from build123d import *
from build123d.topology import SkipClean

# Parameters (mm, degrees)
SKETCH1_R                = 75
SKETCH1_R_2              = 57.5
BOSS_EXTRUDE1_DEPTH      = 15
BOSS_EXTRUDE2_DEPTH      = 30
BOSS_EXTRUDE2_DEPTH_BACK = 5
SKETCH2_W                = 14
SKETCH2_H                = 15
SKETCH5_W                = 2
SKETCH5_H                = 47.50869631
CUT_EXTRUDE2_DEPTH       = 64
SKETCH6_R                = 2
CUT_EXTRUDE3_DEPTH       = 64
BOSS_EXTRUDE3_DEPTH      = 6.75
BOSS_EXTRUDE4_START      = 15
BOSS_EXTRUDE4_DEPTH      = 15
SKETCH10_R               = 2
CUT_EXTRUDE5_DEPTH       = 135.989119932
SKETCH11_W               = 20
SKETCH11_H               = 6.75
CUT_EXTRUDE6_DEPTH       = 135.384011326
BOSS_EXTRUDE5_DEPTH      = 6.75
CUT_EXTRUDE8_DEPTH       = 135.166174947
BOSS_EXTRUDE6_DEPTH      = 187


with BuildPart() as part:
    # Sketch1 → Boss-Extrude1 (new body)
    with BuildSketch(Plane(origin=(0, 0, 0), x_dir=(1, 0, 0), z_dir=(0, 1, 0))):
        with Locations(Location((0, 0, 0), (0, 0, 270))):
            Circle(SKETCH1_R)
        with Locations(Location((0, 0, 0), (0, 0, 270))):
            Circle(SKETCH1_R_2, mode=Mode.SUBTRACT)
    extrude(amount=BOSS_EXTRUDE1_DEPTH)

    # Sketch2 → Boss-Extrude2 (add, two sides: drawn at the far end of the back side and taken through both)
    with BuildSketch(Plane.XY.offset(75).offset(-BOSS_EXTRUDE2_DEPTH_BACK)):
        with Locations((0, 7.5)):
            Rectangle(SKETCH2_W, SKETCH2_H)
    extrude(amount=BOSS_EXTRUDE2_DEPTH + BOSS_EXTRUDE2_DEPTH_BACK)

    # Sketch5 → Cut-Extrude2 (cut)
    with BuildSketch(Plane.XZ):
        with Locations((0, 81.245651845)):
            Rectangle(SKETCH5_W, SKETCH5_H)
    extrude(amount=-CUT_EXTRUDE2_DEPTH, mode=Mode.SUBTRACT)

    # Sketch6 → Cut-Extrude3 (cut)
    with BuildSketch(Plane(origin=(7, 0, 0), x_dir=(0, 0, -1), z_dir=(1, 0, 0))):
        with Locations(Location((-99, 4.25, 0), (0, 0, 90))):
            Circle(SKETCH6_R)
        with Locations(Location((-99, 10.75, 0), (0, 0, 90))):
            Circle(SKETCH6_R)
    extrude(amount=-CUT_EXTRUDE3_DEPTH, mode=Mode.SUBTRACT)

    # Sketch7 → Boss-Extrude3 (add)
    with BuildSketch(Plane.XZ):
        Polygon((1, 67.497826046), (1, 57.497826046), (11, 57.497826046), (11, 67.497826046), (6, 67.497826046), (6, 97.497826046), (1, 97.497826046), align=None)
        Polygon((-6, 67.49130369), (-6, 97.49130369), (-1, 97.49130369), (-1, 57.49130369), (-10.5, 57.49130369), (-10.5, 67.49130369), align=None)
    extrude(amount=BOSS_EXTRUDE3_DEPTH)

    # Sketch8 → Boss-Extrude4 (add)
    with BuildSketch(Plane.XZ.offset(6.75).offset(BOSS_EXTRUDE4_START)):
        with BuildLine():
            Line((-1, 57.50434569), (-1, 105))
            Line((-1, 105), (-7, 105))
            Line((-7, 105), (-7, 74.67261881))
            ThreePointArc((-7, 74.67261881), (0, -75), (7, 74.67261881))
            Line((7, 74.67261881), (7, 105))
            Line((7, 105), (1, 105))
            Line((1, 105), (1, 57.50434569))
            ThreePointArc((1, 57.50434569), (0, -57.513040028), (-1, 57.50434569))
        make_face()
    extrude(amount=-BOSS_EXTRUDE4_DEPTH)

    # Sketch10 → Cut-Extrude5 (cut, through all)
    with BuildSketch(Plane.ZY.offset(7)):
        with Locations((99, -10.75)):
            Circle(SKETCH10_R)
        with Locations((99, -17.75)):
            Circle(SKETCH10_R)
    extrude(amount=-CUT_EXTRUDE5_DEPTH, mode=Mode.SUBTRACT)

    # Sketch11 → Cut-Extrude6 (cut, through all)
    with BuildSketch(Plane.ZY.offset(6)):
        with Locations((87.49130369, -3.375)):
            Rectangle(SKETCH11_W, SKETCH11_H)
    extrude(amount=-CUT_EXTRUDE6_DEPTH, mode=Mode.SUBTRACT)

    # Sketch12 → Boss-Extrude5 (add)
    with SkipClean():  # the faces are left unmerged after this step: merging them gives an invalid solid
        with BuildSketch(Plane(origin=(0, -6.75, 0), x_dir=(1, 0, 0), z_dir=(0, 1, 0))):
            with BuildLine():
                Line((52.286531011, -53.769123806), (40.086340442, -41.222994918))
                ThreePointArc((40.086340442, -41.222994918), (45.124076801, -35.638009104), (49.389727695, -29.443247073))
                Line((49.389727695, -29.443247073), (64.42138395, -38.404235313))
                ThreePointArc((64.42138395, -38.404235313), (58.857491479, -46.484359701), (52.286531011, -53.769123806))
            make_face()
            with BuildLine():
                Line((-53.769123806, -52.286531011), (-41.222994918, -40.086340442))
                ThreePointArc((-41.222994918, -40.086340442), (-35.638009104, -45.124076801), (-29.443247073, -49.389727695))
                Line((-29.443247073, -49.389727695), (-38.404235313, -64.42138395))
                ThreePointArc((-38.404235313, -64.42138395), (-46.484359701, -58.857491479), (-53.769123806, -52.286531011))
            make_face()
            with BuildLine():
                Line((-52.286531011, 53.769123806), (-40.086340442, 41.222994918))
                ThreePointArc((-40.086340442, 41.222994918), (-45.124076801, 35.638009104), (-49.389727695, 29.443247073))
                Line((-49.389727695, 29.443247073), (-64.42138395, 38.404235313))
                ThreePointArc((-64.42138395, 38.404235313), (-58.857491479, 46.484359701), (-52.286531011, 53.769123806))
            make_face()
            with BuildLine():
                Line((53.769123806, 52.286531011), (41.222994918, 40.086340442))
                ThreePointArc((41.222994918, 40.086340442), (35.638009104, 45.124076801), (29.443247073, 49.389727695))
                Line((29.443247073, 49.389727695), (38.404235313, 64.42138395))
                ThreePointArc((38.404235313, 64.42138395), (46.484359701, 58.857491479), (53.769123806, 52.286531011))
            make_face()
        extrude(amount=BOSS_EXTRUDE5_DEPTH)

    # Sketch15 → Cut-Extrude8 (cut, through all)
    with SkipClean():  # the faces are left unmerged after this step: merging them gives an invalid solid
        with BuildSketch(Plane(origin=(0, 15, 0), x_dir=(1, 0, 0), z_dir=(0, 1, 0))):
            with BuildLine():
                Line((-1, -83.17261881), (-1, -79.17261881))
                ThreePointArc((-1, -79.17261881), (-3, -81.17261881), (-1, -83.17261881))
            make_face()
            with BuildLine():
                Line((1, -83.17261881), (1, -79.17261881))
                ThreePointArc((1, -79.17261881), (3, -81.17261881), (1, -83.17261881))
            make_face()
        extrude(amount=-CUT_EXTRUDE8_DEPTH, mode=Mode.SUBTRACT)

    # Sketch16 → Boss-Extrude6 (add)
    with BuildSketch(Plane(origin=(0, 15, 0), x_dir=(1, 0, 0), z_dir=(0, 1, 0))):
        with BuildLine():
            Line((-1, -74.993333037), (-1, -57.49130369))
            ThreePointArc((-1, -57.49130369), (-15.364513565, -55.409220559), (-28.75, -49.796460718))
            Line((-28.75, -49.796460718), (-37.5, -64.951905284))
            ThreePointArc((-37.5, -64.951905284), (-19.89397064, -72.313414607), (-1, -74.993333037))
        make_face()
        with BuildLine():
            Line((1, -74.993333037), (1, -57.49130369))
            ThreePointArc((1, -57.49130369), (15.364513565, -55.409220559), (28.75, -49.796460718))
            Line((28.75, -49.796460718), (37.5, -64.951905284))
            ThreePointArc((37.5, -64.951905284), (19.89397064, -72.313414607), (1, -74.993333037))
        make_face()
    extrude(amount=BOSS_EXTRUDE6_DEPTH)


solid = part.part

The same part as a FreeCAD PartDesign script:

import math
import FreeCAD as App
import Part
import Sketcher
from FreeCAD import Vector
Q = App.Units.Quantity


def add_polygon(sketch, points):
    """Adds a closed chain of lines whose ends are joined by coincident constraints."""
    first, n = sketch.GeometryCount, len(points)
    for a, b in zip(points, points[1:] + points[:1]):
        sketch.addGeometry(Part.LineSegment(App.Vector(*a, 0), App.Vector(*b, 0)), False)
    for i in range(n):
        sketch.addConstraint(Sketcher.Constraint("Coincident", first + i, 2, first + (i + 1) % n, 1))

doc = App.newDocument("Part")
body = doc.addObject("PartDesign::Body", "Body")

# Sketch on XZ plane
sketch1 = body.newObject("Sketcher::SketchObject", "Sketch")
sketch1.AttachmentSupport = (doc.getObject("XZ_Plane"), [""])
sketch1.MapMode = "FlatFace"
sketch1.addGeometry([
    Part.Circle(Vector(0, 0, 0), Vector(0, 0, 1), 75),
    Part.Circle(Vector(0, 0, 0), Vector(0, 0, 1), 58),
], False)
sketch1.addConstraint([
    Sketcher.Constraint("Coincident", 0, 3, -1, 1),
    Sketcher.Constraint("Coincident", 1, 3, -1, 1),
    Sketcher.Constraint("Diameter", 0, 150.0),
    Sketcher.Constraint("Diameter", 1, 115.0),
])
pad1 = body.newObject("PartDesign::Pad", "Pad")
pad1.Profile = sketch1
pad1.Length = 15
pad1.Reversed = True

# Sketch on XY plane
sketch2 = body.newObject("Sketcher::SketchObject", "Sketch001")
sketch2.AttachmentSupport = (doc.getObject("XY_Plane"), [""])
sketch2.MapMode = "FlatFace"
sketch2.AttachmentOffset = App.Placement(Vector(0, 0, 75), App.Rotation())
add_polygon(sketch2, [(-7, 15), (-7, 0), (7, 0), (7, 15)])  # lines 0-3
sketch2.addConstraint([
    Sketcher.Constraint("Vertical", 0),
    Sketcher.Constraint("Horizontal", 1),
    Sketcher.Constraint("Vertical", 2),
    Sketcher.Constraint("Horizontal", 3),
    Sketcher.Constraint("Symmetric", 0, 2, 1, 2, -1, 1),
    Sketcher.Constraint("DistanceX", 1, 1, 1, 2, 14.0),
    Sketcher.Constraint("DistanceY", 0, 2, 0, 1, 15.0),
])
pad2 = body.newObject("PartDesign::Pad", "Pad001")
pad2.Profile = sketch2
pad2.Type = "TwoLengths"
pad2.Length = 30
pad2.Length2 = 5

# Sketch on XZ plane
sketch3 = body.newObject("Sketcher::SketchObject", "Sketch002")
sketch3.AttachmentSupport = (doc.getObject("XZ_Plane"), [""])
sketch3.MapMode = "FlatFace"
add_polygon(sketch3, [(-1, 105), (-1, 57.5), (1, 57.5), (1, 105)])  # lines 0-3
sketch3.addConstraint([
    Sketcher.Constraint("Vertical", 0),
    Sketcher.Constraint("Horizontal", 1),
    Sketcher.Constraint("Vertical", 2),
    Sketcher.Constraint("Horizontal", 3),
    Sketcher.Constraint("DistanceX", 1, 1, 1, 2, 2.0),
    Sketcher.Constraint("DistanceX", 0, 2, -1, 1, 1.0),
    Sketcher.Constraint("DistanceY", -1, 1, 2, 2, 105.0),
    Sketcher.Constraint("DistanceY", 0, 2, 0, 1, 47.508696),
])
pocket1 = body.newObject("PartDesign::Pocket", "Pocket")
pocket1.Profile = sketch3
pocket1.Length = 64

# Sketch on YZ plane
sketch4 = body.newObject("Sketcher::SketchObject", "Sketch003")
sketch4.AttachmentSupport = (doc.getObject("YZ_Plane"), [""])
sketch4.MapMode = "FlatFace"
sketch4.AttachmentOffset = App.Placement(Vector(0, 0, 7), App.Rotation())
sketch4.addGeometry([
    Part.Circle(Vector(4.2, 99, 0), Vector(0, 0, 1), 2),
    Part.Circle(Vector(10.8, 99, 0), Vector(0, 0, 1), 2),
], False)
sketch4.addConstraint([
    Sketcher.Constraint("Equal", 0, 1),
    Sketcher.Constraint("Horizontal", 0, 3, 1, 3),
    Sketcher.Constraint("Diameter", 0, 4.0),
    Sketcher.Constraint("DistanceY", -1, 1, 0, 3, 99.0),
    Sketcher.Constraint("DistanceX", 0, 3, 1, 3, 6.5),
    Sketcher.Constraint("DistanceX", -1, 1, 0, 3, 4.25),
])
pocket2 = body.newObject("PartDesign::Pocket", "Pocket001")
pocket2.Profile = sketch4
pocket2.Length = 64

# Sketch on XZ plane
sketch5 = body.newObject("Sketcher::SketchObject", "Sketch004")
sketch5.AttachmentSupport = (doc.getObject("XZ_Plane"), [""])
sketch5.MapMode = "FlatFace"
add_polygon(sketch5, [(1, 57.5), (11, 57.5), (11, 67.5), (6, 67.5), (6, 97.5), (1, 97.5)])  # lines 0-5
add_polygon(sketch5, [(-6, 97.5), (-6, 67.5), (-10.5, 67.5), (-10.5, 57.5), (-1, 57.5), (-1, 97.5)])  # lines 6-11
sketch5.addConstraint([
    Sketcher.Constraint("Horizontal", 0),
    Sketcher.Constraint("Vertical", 1),
    Sketcher.Constraint("Horizontal", 2),
    Sketcher.Constraint("Vertical", 3),
    Sketcher.Constraint("Horizontal", 4),
    Sketcher.Constraint("Vertical", 5),
    Sketcher.Constraint("Vertical", 6),
    Sketcher.Constraint("Horizontal", 7),
    Sketcher.Constraint("Vertical", 8),
    Sketcher.Constraint("Horizontal", 9),
    Sketcher.Constraint("Vertical", 10),
    Sketcher.Constraint("Horizontal", 11),
    Sketcher.Constraint("Equal", 2, 4),
    Sketcher.Constraint("Equal", 4, 11),
    Sketcher.Constraint("Equal", 0, 1),
    Sketcher.Constraint("Equal", 3, 6),
    Sketcher.Constraint("Equal", 1, 8),
    Sketcher.Constraint("DistanceX", 0, 1, 0, 2, 10.0),
    Sketcher.Constraint("DistanceY", 3, 1, 3, 2, 30.0),
    Sketcher.Constraint("DistanceX", 7, 2, 7, 1, 4.5),
    Sketcher.Constraint("DistanceX", -1, 1, 0, 2, 11.0),
    Sketcher.Constraint("DistanceX", 6, 2, -1, 1, 6.0),
    Sketcher.Constraint("DistanceY", -1, 1, 0, 2, 57.497826),
    Sketcher.Constraint("DistanceY", -1, 1, 6, 2, 67.491304),
])
pad3 = body.newObject("PartDesign::Pad", "Pad002")
pad3.Profile = sketch5
pad3.Length = 6.75

# Sketch on XZ plane
sketch6 = body.newObject("Sketcher::SketchObject", "Sketch005")
sketch6.AttachmentSupport = (doc.getObject("XZ_Plane"), [""])
sketch6.MapMode = "FlatFace"
sketch6.AttachmentOffset = App.Placement(Vector(0, 0, 21.75), App.Rotation())
sketch6.addGeometry([
    Part.LineSegment(Vector(-1, 57.5, 0), Vector(-1, 105, 0)),  # 0
    Part.LineSegment(Vector(-1, 105, 0), Vector(-7, 105, 0)),  # 1
    Part.LineSegment(Vector(-7, 105, 0), Vector(-7, 74.7, 0)),  # 2
    Part.ArcOfCircle(Part.Circle(Vector(0, 0, 0), Vector(0, 0, 1), 75), math.radians(95), math.radians(445)),  # 3
    Part.LineSegment(Vector(7, 74.7, 0), Vector(7, 105, 0)),  # 4
    Part.LineSegment(Vector(7, 105, 0), Vector(1, 105, 0)),  # 5
    Part.LineSegment(Vector(1, 105, 0), Vector(1, 57.5, 0)),  # 6
    Part.ArcOfCircle(Part.Circle(Vector(0, 0, 0), Vector(0, 0, 1), 57.5), math.radians(91), math.radians(449)),  # 7
], False)
sketch6.addConstraint([
    Sketcher.Constraint("Coincident", 0, 2, 1, 1),
    Sketcher.Constraint("Coincident", 1, 2, 2, 1),
    Sketcher.Constraint("Coincident", 2, 2, 3, 1),
    Sketcher.Constraint("Coincident", 3, 2, 4, 1),
    Sketcher.Constraint("Coincident", 4, 2, 5, 1),
    Sketcher.Constraint("Coincident", 5, 2, 6, 1),
    Sketcher.Constraint("Coincident", 6, 2, 7, 2),
    Sketcher.Constraint("Coincident", 7, 1, 0, 1),
    Sketcher.Constraint("Vertical", 0),
    Sketcher.Constraint("Horizontal", 1),
    Sketcher.Constraint("Vertical", 2),
    Sketcher.Constraint("Vertical", 4),
    Sketcher.Constraint("Horizontal", 5),
    Sketcher.Constraint("Vertical", 6),
    Sketcher.Constraint("Coincident", 3, 3, -1, 1),
    Sketcher.Constraint("Coincident", 7, 3, -1, 1),
    Sketcher.Constraint("Symmetric", 1, 2, 4, 2, -2),
    Sketcher.Constraint("Horizontal", 6, 2, 7, 1),
    Sketcher.Constraint("Radius", 3, 75.0),
    Sketcher.Constraint("DistanceX", 1, 2, 1, 1, 6.0),
    Sketcher.Constraint("DistanceX", 0, 2, -1, 1, 1.0),
    Sketcher.Constraint("DistanceY", -1, 1, 0, 2, 105.0),
    Sketcher.Constraint("Radius", 7, 57.51304),
])
pad4 = body.newObject("PartDesign::Pad", "Pad003")
pad4.Profile = sketch6
pad4.Length = 15
pad4.Reversed = True

# Sketch on YZ plane
sketch7 = body.newObject("Sketcher::SketchObject", "Sketch006")
sketch7.AttachmentSupport = (doc.getObject("YZ_Plane"), [""])
sketch7.MapMode = "FlatFace"
sketch7.AttachmentOffset = App.Placement(Vector(0, 0, -7), App.Rotation())
sketch7.addGeometry([
    Part.Circle(Vector(-10.8, 99, 0), Vector(0, 0, 1), 2),
    Part.Circle(Vector(-17.8, 99, 0), Vector(0, 0, 1), 2),
], False)
sketch7.addConstraint([
    Sketcher.Constraint("Equal", 0, 1),
    Sketcher.Constraint("Horizontal", 0, 3, 1, 3),
    Sketcher.Constraint("Diameter", 0, 4.0),
    Sketcher.Constraint("DistanceY", -1, 1, 0, 3, 99.0),
    Sketcher.Constraint("DistanceX", 1, 3, 0, 3, 7.0),
    Sketcher.Constraint("DistanceX", 0, 3, -1, 1, 10.75),
])
pocket3 = body.newObject("PartDesign::Pocket", "Pocket002")
pocket3.Profile = sketch7
pocket3.Type = "ThroughAll"
pocket3.Reversed = True

# Sketch on YZ plane
sketch8 = body.newObject("Sketcher::SketchObject", "Sketch007")
sketch8.AttachmentSupport = (doc.getObject("YZ_Plane"), [""])
sketch8.MapMode = "FlatFace"
sketch8.AttachmentOffset = App.Placement(Vector(0, 0, -6), App.Rotation())
add_polygon(sketch8, [(0, 77), (-7, 77), (-7, 97), (0, 97)])  # lines 0-3
sketch8.addConstraint([
    Sketcher.Constraint("Horizontal", 0),
    Sketcher.Constraint("Vertical", 1),
    Sketcher.Constraint("Horizontal", 2),
    Sketcher.Constraint("Vertical", 3),
    Sketcher.Constraint("PointOnObject", 2, 2, -2),
    Sketcher.Constraint("DistanceY", 1, 1, 1, 2, 20.0),
    Sketcher.Constraint("DistanceX", 0, 2, 0, 1, 6.75),
    Sketcher.Constraint("DistanceY", -1, 1, 0, 2, 77.491304),
])
pocket4 = body.newObject("PartDesign::Pocket", "Pocket003")
pocket4.Profile = sketch8
pocket4.Type = "ThroughAll"
pocket4.Reversed = True

# Sketch on XZ plane
sketch9 = body.newObject("Sketcher::SketchObject", "Sketch008")
sketch9.AttachmentSupport = (doc.getObject("XZ_Plane"), [""])
sketch9.MapMode = "FlatFace"
sketch9.AttachmentOffset = App.Placement(Vector(0, 0, 6.75), App.Rotation())
sketch9.addGeometry([
    Part.LineSegment(Vector(40, 41, 0), Vector(52, 54, 0)),  # 0
    Part.ArcOfCircle(Part.Circle(Vector(0, 0, 0), Vector(0, 0, 1), 75), math.radians(30.8), math.radians(45.8)),  # 1
    Part.LineSegment(Vector(64, 38, 0), Vector(49, 29, 0)),  # 2
    Part.ArcOfCircle(Part.Circle(Vector(0, 0, 0), Vector(0, 0, 1), 57), math.radians(30.8), math.radians(45.8)),  # 3
    Part.LineSegment(Vector(-41, 40, 0), Vector(-54, 52, 0)),  # 4
    Part.ArcOfCircle(Part.Circle(Vector(0, 0, 0), Vector(0, 0, 1), 75), math.radians(120.8), math.radians(135.8)),  # 5
    Part.LineSegment(Vector(-38, 64, 0), Vector(-29, 49, 0)),  # 6
    Part.ArcOfCircle(Part.Circle(Vector(0, 0, 0), Vector(0, 0, 1), 57), math.radians(120.8), math.radians(135.8)),  # 7
    Part.LineSegment(Vector(-40, -41, 0), Vector(-52, -54, 0)),  # 8
    Part.ArcOfCircle(Part.Circle(Vector(0, 0, 0), Vector(0, 0, 1), 75), math.radians(-149.2), math.radians(-134.2)),  # 9
    Part.LineSegment(Vector(-64, -38, 0), Vector(-49, -29, 0)),  # 10
    Part.ArcOfCircle(Part.Circle(Vector(0, 0, 0), Vector(0, 0, 1), 57), math.radians(-149.2), math.radians(-134.2)),  # 11
    Part.LineSegment(Vector(41, -40, 0), Vector(54, -52, 0)),  # 12
    Part.ArcOfCircle(Part.Circle(Vector(0, 0, 0), Vector(0, 0, 1), 75), math.radians(-59.2), math.radians(-44.2)),  # 13
    Part.LineSegment(Vector(38, -64, 0), Vector(29, -49, 0)),  # 14
    Part.ArcOfCircle(Part.Circle(Vector(0, 0, 0), Vector(0, 0, 1), 57), math.radians(-59.2), math.radians(-44.2)),  # 15
], False)
sketch9.addConstraint([
    Sketcher.Constraint("Coincident", 0, 2, 1, 2),
    Sketcher.Constraint("Coincident", 1, 1, 2, 1),
    Sketcher.Constraint("Coincident", 2, 2, 3, 1),
    Sketcher.Constraint("Coincident", 3, 2, 0, 1),
    Sketcher.Constraint("Coincident", 4, 2, 5, 2),
    Sketcher.Constraint("Coincident", 5, 1, 6, 1),
    Sketcher.Constraint("Coincident", 6, 2, 7, 1),
    Sketcher.Constraint("Coincident", 7, 2, 4, 1),
    Sketcher.Constraint("Coincident", 8, 2, 9, 2),
    Sketcher.Constraint("Coincident", 9, 1, 10, 1),
    Sketcher.Constraint("Coincident", 10, 2, 11, 1),
    Sketcher.Constraint("Coincident", 11, 2, 8, 1),
    Sketcher.Constraint("Coincident", 12, 2, 13, 2),
    Sketcher.Constraint("Coincident", 13, 1, 14, 1),
    Sketcher.Constraint("Coincident", 14, 2, 15, 1),
    Sketcher.Constraint("Coincident", 15, 2, 12, 1),
    Sketcher.Constraint("Coincident", 1, 3, -1, 1),
    Sketcher.Constraint("Coincident", 3, 3, -1, 1),
    Sketcher.Constraint("Coincident", 5, 3, -1, 1),
    Sketcher.Constraint("Coincident", 7, 3, -1, 1),
    Sketcher.Constraint("Coincident", 9, 3, -1, 1),
    Sketcher.Constraint("Coincident", 11, 3, -1, 1),
    Sketcher.Constraint("Coincident", 13, 3, -1, 1),
    Sketcher.Constraint("Coincident", 15, 3, -1, 1),
    Sketcher.Constraint("Equal", 1, 5),
    Sketcher.Constraint("Equal", 3, 7),
    Sketcher.Constraint("Equal", 5, 9),
    Sketcher.Constraint("Equal", 7, 11),
    Sketcher.Constraint("Equal", 9, 13),
    Sketcher.Constraint("Equal", 11, 15),
    Sketcher.Constraint("Perpendicular", 0, 4),
    Sketcher.Constraint("Perpendicular", 2, 6),
    Sketcher.Constraint("Perpendicular", 4, 8),
    Sketcher.Constraint("Perpendicular", 6, 10),
    Sketcher.Constraint("Perpendicular", 8, 12),
    Sketcher.Constraint("Perpendicular", 10, 14),
    Sketcher.Constraint("Radius", 1, 75.0),
    Sketcher.Constraint("Radius", 3, 57.5),
    Sketcher.Constraint("DistanceX", -1, 1, 0, 2, 52.286531),
    Sketcher.Constraint("DistanceX", -1, 1, 3, 2, 40.08634),
    Sketcher.Constraint("DistanceY", -1, 1, 4, 2, 52.286531),
    Sketcher.Constraint("DistanceX", 8, 2, -1, 1, 52.286531),
    Sketcher.Constraint("DistanceY", 12, 2, -1, 1, 52.286531),
    Sketcher.Constraint("DistanceY", 1, 1, 0, 2, 15.364888),
    Sketcher.Constraint("DistanceY", 2, 2, 1, 1, 8.960988),
    Sketcher.Constraint("DistanceX", 4, 2, 5, 1, 15.364888),
    Sketcher.Constraint("DistanceY", 8, 2, 9, 1, 15.364888),
    Sketcher.Constraint("DistanceX", 13, 1, 12, 2, 15.364888),
])
pad5 = body.newObject("PartDesign::Pad", "Pad004")
pad5.Profile = sketch9
pad5.Length = 6.75
pad5.Reversed = True

# Sketch on XZ plane
sketch10 = body.newObject("Sketcher::SketchObject", "Sketch009")
sketch10.AttachmentSupport = (doc.getObject("XZ_Plane"), [""])
sketch10.MapMode = "FlatFace"
sketch10.AttachmentOffset = App.Placement(Vector(0, 0, -15), App.Rotation())
sketch10.addGeometry([
    Part.LineSegment(Vector(-1, 83.2, 0), Vector(-1, 79.2, 0)),
    Part.ArcOfCircle(Part.Circle(Vector(-1, 81.2, 0), Vector(0, 0, 1), 2), math.radians(90), math.radians(270)),
    Part.LineSegment(Vector(1, 79.2, 0), Vector(1, 83.2, 0)),
    Part.ArcOfCircle(Part.Circle(Vector(1, 81.2, 0), Vector(0, 0, 1), 2), math.radians(-90), math.radians(90)),
], False)
sketch10.addConstraint([
    Sketcher.Constraint("Coincident", 0, 1, 1, 1),
    Sketcher.Constraint("Coincident", 1, 2, 0, 2),
    Sketcher.Constraint("Coincident", 2, 1, 3, 1),
    Sketcher.Constraint("Coincident", 3, 2, 2, 2),
    Sketcher.Constraint("Vertical", 0),
    Sketcher.Constraint("Vertical", 2),
    Sketcher.Constraint("Equal", 1, 3),
    Sketcher.Constraint("Symmetric", 1, 3, 3, 3, -2),
    Sketcher.Constraint("Vertical", 1, 3, 0, 1),
    Sketcher.Constraint("Vertical", 3, 3, 2, 1),
    Sketcher.Constraint("Radius", 1, 2.0),
    Sketcher.Constraint("DistanceX", 1, 3, -1, 1, 1.0),
    Sketcher.Constraint("DistanceY", -1, 1, 1, 3, 81.172619),
])
pocket5 = body.newObject("PartDesign::Pocket", "Pocket004")
pocket5.Profile = sketch10
pocket5.Type = "ThroughAll"
pocket5.Reversed = True

# Sketch on XZ plane
sketch11 = body.newObject("Sketcher::SketchObject", "Sketch010")
sketch11.AttachmentSupport = (doc.getObject("XZ_Plane"), [""])
sketch11.MapMode = "FlatFace"
sketch11.AttachmentOffset = App.Placement(Vector(0, 0, -15), App.Rotation())
sketch11.addGeometry([
    Part.LineSegment(Vector(-1, 75, 0), Vector(-1, 57, 0)),  # 0
    Part.ArcOfCircle(Part.Circle(Vector(0, 0, 0), Vector(0, 0, 1), 57), math.radians(91), math.radians(120)),  # 1
    Part.LineSegment(Vector(-29, 50, 0), Vector(-38, 65, 0)),  # 2
    Part.ArcOfCircle(Part.Circle(Vector(0, 0, 0), Vector(0, 0, 1), 75), math.radians(91), math.radians(120)),  # 3
    Part.LineSegment(Vector(1, 57, 0), Vector(1, 75, 0)),  # 4
    Part.ArcOfCircle(Part.Circle(Vector(0, 0, 0), Vector(0, 0, 1), 75), math.radians(60), math.radians(89)),  # 5
    Part.LineSegment(Vector(38, 65, 0), Vector(29, 50, 0)),  # 6
    Part.ArcOfCircle(Part.Circle(Vector(0, 0, 0), Vector(0, 0, 1), 57), math.radians(60), math.radians(89)),  # 7
], False)
sketch11.addConstraint([
    Sketcher.Constraint("Coincident", 0, 2, 1, 1),
    Sketcher.Constraint("Coincident", 1, 2, 2, 1),
    Sketcher.Constraint("Coincident", 2, 2, 3, 2),
    Sketcher.Constraint("Coincident", 3, 1, 0, 1),
    Sketcher.Constraint("Coincident", 4, 2, 5, 2),
    Sketcher.Constraint("Coincident", 5, 1, 6, 1),
    Sketcher.Constraint("Coincident", 6, 2, 7, 1),
    Sketcher.Constraint("Coincident", 7, 2, 4, 1),
    Sketcher.Constraint("Vertical", 0),
    Sketcher.Constraint("Vertical", 4),
    Sketcher.Constraint("Coincident", 1, 3, -1, 1),
    Sketcher.Constraint("Coincident", 3, 3, -1, 1),
    Sketcher.Constraint("Coincident", 5, 3, -1, 1),
    Sketcher.Constraint("Coincident", 7, 3, -1, 1),
    Sketcher.Constraint("Equal", 3, 5),
    Sketcher.Constraint("Equal", 1, 7),
    Sketcher.Constraint("Horizontal", 3, 1, 4, 2),
    Sketcher.Constraint("Horizontal", 2, 2, 5, 1),
    Sketcher.Constraint("Horizontal", 1, 2, 6, 2),
    Sketcher.Constraint("Radius", 3, 75.0),
    Sketcher.Constraint("Radius", 1, 57.5),
    Sketcher.Constraint("Angle", 2, Q("120 deg")),
    Sketcher.Constraint("DistanceX", 0, 2, -1, 1, 1.0),
    Sketcher.Constraint("DistanceX", 2, 2, -1, 1, 37.5),
])
pad6 = body.newObject("PartDesign::Pad", "Pad005")
pad6.Profile = sketch11
pad6.Length = 187
pad6.Reversed = True

doc.recompute()
